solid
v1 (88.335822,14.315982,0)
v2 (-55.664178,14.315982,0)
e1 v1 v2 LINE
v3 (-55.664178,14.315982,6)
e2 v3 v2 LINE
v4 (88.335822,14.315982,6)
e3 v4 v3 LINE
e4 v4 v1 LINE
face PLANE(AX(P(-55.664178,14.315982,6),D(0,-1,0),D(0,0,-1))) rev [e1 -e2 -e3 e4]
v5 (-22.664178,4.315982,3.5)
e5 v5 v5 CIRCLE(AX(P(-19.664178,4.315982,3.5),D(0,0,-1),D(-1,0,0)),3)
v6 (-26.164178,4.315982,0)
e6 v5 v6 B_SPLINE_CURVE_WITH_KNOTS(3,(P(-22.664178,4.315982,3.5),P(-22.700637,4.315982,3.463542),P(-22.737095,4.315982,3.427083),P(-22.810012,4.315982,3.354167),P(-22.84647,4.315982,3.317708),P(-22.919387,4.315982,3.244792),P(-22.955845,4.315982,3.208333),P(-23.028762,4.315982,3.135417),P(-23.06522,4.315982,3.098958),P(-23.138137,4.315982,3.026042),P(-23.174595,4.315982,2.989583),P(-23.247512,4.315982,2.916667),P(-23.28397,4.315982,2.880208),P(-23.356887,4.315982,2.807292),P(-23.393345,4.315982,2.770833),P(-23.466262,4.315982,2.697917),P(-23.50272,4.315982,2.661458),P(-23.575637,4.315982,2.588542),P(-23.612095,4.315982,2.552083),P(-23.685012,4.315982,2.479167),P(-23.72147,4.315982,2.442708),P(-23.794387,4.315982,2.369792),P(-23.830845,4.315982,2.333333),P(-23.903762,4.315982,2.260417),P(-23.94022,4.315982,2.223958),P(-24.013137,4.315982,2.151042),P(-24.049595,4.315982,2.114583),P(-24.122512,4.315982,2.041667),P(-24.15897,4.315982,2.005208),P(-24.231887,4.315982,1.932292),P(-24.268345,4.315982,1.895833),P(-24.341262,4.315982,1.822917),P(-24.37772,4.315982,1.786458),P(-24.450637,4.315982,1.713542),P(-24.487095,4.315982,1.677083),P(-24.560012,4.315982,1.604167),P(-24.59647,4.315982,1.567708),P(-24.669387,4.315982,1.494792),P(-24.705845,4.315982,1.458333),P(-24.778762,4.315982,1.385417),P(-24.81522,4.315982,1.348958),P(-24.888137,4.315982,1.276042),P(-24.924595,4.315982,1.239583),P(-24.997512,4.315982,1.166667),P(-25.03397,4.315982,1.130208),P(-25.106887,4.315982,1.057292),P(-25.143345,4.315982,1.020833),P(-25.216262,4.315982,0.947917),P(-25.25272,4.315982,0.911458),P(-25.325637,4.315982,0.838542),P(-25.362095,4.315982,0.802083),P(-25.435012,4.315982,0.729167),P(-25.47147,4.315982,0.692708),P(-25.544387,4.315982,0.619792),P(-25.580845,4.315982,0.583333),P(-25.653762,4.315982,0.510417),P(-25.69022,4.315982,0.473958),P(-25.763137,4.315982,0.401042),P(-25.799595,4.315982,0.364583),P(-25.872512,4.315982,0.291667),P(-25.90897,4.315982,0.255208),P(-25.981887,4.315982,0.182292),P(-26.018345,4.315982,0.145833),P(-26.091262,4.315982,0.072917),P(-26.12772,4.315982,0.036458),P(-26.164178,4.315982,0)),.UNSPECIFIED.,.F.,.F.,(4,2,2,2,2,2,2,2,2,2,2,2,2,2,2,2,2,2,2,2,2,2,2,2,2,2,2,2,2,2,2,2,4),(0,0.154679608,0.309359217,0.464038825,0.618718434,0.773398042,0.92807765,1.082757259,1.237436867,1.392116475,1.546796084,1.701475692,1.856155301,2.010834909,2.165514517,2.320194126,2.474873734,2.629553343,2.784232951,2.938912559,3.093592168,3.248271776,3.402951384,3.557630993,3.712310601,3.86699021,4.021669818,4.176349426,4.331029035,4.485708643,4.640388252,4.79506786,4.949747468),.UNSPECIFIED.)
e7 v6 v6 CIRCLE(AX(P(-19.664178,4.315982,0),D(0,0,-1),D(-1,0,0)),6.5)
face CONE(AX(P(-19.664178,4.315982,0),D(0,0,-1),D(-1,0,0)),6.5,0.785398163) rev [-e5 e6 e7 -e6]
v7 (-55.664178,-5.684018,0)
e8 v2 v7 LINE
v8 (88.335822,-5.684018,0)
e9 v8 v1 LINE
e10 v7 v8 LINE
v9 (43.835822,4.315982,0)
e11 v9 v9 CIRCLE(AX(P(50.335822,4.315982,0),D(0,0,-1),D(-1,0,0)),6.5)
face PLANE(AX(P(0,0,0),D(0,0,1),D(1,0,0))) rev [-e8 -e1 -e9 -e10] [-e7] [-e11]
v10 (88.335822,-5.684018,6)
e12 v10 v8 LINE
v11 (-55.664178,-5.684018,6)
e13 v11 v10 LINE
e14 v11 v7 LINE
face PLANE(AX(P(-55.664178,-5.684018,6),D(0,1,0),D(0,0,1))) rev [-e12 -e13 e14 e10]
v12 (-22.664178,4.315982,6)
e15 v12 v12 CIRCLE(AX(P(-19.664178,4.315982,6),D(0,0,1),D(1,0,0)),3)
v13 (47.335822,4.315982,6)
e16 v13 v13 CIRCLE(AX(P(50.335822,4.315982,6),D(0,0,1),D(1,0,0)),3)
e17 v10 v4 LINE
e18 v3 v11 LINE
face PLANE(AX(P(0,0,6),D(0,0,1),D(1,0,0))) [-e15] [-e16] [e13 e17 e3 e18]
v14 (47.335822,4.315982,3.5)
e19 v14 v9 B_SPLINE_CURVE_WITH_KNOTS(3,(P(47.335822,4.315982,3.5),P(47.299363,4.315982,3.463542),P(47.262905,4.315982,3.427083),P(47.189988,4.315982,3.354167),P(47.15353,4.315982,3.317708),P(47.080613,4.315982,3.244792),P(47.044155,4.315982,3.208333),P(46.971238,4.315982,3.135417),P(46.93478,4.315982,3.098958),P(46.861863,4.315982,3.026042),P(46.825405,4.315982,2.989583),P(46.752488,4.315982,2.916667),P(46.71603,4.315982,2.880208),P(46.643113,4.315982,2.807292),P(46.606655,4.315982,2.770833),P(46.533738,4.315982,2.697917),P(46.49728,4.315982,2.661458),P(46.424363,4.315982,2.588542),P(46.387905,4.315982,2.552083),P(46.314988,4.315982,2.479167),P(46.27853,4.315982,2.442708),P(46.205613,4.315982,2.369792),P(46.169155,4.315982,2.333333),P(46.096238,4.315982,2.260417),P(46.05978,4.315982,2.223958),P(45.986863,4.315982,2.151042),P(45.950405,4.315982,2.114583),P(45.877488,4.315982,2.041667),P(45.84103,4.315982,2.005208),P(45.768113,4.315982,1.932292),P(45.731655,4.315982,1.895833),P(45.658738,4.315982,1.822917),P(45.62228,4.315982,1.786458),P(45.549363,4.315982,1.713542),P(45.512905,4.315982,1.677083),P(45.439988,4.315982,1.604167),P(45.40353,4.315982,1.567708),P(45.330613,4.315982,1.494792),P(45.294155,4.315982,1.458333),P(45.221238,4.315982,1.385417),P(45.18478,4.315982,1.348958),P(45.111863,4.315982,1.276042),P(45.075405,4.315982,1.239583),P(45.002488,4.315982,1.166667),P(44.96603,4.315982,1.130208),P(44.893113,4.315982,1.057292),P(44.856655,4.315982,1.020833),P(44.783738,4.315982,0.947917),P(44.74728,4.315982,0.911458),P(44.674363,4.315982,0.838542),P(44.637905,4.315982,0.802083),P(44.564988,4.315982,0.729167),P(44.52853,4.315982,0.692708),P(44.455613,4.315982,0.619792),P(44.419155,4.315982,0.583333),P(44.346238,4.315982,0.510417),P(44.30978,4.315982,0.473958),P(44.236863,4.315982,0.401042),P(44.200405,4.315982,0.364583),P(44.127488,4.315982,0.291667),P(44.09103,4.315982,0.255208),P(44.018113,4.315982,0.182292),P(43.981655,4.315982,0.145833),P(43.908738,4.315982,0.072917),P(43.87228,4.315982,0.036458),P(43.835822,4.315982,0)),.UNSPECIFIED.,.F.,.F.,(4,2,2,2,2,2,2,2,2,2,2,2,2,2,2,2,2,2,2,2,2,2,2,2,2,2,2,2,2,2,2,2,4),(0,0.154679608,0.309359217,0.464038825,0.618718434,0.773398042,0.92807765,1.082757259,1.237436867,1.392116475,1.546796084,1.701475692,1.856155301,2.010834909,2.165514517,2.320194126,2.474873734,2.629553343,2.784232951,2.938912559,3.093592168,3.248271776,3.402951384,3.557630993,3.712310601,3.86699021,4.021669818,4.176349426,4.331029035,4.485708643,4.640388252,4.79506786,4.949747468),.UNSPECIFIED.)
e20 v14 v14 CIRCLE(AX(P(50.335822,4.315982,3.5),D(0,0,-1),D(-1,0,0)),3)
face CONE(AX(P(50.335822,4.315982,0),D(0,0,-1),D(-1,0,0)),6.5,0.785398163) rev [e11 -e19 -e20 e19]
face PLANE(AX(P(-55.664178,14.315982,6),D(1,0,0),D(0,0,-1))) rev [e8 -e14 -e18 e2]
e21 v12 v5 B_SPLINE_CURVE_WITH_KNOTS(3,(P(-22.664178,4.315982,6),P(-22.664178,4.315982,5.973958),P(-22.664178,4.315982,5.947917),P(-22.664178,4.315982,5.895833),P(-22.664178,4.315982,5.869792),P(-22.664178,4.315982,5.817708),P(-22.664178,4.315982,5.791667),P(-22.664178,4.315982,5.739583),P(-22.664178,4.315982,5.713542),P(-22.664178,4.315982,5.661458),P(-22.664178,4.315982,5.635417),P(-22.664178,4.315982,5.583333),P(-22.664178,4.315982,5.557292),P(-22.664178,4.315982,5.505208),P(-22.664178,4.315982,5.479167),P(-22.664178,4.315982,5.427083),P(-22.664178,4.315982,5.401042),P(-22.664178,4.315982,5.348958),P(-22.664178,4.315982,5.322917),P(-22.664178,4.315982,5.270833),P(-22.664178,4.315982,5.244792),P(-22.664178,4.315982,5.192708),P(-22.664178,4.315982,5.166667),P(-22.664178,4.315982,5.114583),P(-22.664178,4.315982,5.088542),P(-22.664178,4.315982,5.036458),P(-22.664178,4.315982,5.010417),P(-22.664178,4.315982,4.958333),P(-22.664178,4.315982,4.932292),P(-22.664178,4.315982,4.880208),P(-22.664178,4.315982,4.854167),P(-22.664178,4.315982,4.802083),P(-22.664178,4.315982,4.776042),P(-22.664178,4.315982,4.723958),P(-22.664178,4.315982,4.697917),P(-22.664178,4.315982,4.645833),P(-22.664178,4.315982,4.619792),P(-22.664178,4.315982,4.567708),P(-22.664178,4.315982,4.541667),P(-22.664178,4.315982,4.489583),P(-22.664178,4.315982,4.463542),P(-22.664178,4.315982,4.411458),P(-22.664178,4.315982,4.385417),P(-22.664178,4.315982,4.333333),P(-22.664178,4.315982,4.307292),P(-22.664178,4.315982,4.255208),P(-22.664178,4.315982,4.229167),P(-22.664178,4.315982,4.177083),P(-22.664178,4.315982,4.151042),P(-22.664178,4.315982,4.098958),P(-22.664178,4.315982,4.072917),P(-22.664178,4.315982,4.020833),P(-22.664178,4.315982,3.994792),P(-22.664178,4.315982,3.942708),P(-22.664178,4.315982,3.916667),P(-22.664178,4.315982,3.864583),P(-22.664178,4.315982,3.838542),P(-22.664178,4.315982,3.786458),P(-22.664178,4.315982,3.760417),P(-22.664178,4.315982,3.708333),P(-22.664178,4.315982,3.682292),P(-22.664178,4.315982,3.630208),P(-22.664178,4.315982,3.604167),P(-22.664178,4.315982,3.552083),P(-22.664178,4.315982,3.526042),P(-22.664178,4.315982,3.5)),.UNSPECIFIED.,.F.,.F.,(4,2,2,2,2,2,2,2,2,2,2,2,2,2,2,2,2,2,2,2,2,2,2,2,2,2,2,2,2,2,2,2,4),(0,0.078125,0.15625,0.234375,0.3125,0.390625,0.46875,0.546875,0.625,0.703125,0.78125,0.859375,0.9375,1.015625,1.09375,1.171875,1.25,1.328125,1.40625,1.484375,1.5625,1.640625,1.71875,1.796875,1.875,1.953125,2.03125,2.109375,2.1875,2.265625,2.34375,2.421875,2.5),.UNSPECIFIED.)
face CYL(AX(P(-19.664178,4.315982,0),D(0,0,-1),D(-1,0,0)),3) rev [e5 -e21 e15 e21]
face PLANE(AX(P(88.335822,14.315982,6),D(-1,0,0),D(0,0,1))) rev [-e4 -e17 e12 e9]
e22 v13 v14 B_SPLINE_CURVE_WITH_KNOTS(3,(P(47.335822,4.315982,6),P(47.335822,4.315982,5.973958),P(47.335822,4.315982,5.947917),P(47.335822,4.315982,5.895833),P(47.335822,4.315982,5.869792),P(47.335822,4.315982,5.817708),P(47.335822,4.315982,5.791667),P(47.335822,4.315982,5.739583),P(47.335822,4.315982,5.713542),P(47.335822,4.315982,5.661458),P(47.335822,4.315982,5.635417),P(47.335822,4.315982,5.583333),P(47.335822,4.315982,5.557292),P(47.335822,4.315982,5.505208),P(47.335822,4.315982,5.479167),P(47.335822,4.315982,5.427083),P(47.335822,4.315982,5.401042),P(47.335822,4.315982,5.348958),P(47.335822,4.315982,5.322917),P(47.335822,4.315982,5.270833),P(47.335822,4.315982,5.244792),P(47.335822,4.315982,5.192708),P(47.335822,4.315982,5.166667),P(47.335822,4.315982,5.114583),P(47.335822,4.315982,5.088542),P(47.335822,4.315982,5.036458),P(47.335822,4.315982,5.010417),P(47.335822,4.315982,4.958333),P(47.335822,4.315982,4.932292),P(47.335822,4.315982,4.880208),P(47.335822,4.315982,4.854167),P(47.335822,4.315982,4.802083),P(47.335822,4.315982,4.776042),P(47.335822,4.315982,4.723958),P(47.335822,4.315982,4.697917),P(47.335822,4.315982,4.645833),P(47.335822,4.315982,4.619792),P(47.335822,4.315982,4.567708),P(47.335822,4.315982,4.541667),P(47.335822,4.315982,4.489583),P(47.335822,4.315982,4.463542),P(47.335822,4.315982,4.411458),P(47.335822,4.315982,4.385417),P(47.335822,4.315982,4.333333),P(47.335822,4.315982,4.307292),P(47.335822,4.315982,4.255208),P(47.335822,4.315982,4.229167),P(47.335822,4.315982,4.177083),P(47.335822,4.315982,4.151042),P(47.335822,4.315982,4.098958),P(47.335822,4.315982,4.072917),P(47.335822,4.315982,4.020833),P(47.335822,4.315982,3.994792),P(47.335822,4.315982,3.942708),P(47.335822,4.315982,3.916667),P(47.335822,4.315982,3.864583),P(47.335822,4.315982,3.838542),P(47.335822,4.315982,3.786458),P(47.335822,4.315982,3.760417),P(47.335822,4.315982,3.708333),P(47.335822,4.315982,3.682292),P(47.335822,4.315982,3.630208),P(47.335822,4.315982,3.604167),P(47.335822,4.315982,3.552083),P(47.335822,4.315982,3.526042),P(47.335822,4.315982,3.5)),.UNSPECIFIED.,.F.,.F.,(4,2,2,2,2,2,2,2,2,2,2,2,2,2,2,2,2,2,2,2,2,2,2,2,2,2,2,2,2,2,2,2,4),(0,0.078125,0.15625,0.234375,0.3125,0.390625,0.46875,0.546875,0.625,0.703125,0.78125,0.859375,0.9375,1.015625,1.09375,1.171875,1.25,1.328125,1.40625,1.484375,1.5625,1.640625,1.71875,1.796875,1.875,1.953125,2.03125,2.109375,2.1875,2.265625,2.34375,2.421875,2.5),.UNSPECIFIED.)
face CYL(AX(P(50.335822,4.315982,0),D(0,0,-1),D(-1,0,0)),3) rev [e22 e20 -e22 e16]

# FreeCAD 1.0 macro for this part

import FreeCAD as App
import Part
import Sketcher

V = App.Vector
Q = App.Units.Quantity

doc = App.newDocument("Part")
params = doc.addObject("Spreadsheet::Sheet", "Params")
for row, (alias, value) in enumerate([
    ("sketch1_width", "144 mm"),
    ("sketch1_height", "20 mm"),
    ("pad1_length", "6 mm"),
    ("sketch2_diameter", "6 mm"),
    ("hole_diameter", "6 mm"),
    ("hole_depth", "17.5 mm"),
    ("hole_csink_diameter", "13 mm"),
], start=1):
    params.set(f"A{row}", alias)
    params.set(f"B{row}", "=" + value)
    params.setAlias(f"B{row}", alias)

body = doc.addObject("PartDesign::Body", "Body")

# Sketch on XY plane
sketch1 = doc.addObject("Sketcher::SketchObject", "Sketch")
body.addObject(sketch1)
sketch1.AttachmentSupport = (doc.XY_Plane, [""])
sketch1.MapMode = "FlatFace"
sketch1.addGeometry([
    Part.LineSegment(V(-55.664178, 14.315982, 0), V(-55.664178, -5.684018, 0)),
    Part.LineSegment(V(-55.664178, -5.684018, 0), V(88.335822, -5.684018, 0)),
    Part.LineSegment(V(88.335822, -5.684018, 0), V(88.335822, 14.315982, 0)),
    Part.LineSegment(V(88.335822, 14.315982, 0), V(-55.664178, 14.315982, 0)),
], False)
sketch1.addConstraint([
    Sketcher.Constraint("Coincident", 0, 2, 1, 1),
    Sketcher.Constraint("Coincident", 1, 2, 2, 1),
    Sketcher.Constraint("Coincident", 2, 2, 3, 1),
    Sketcher.Constraint("Coincident", 3, 2, 0, 1),
    Sketcher.Constraint("Vertical", 0),
    Sketcher.Constraint("Horizontal", 1),
    Sketcher.Constraint("Vertical", 2),
    Sketcher.Constraint("Horizontal", 3),
    Sketcher.Constraint("DistanceX", 1, 1, 1, 2, Q("144 mm")),
    Sketcher.Constraint("DistanceY", 0, 2, 0, 1, Q("20 mm")),
    Sketcher.Constraint("DistanceX", 0, 2, -1, 1, Q("55.664178 mm")),
    Sketcher.Constraint("DistanceY", 0, 2, -1, 1, Q("5.684018 mm")),
])
sketch1.setExpression("Constraints[8]", "Params.sketch1_width")
sketch1.setExpression("Constraints[9]", "Params.sketch1_height")
pad1 = doc.addObject("PartDesign::Pad", "Pad")
body.addObject(pad1)
pad1.Profile = sketch1
pad1.setExpression("Length", "Params.pad1_length")

# Sketch on XY plane
sketch2 = doc.addObject("Sketcher::SketchObject", "Sketch001")
body.addObject(sketch2)
sketch2.AttachmentSupport = (doc.XY_Plane, [""])
sketch2.MapMode = "FlatFace"
sketch2.addGeometry([
    Part.Circle(V(50.335822, 4.315982, 0), V(0, 0, 1), 3),
    Part.Circle(V(-19.664178, 4.315982, 0), V(0, 0, 1), 3),
], False)
sketch2.addConstraint([
    Sketcher.Constraint("Equal", 0, 1),
    Sketcher.Constraint("Horizontal", 0, 3, 1, 3),
    Sketcher.Constraint("Diameter", 0, Q("6 mm")),
    Sketcher.Constraint("DistanceX", 1, 3, 0, 3, Q("70 mm")),
    Sketcher.Constraint("DistanceX", -1, 1, 0, 3, Q("50.335822 mm")),
    Sketcher.Constraint("DistanceY", -1, 1, 0, 3, Q("4.315982 mm")),
])
sketch2.setExpression("Constraints[2]", "Params.sketch2_diameter")
doc.recompute()
hole = doc.addObject("PartDesign::Hole", "Hole")
body.addObject(hole)
hole.Profile = sketch2
hole.ThreadType = "None"
hole.setExpression("Diameter", "Params.hole_diameter")
hole.DepthType = "Dimension"
hole.setExpression("Depth", "Params.hole_depth")
hole.DrillPoint = "Angled"
hole.DrillPointAngle = 118
hole.HoleCutType = "Countersink"
hole.setExpression("HoleCutDiameter", "Params.hole_csink_diameter")
hole.HoleCutCountersinkAngle = 90
hole.Reversed = True

doc.recompute()
